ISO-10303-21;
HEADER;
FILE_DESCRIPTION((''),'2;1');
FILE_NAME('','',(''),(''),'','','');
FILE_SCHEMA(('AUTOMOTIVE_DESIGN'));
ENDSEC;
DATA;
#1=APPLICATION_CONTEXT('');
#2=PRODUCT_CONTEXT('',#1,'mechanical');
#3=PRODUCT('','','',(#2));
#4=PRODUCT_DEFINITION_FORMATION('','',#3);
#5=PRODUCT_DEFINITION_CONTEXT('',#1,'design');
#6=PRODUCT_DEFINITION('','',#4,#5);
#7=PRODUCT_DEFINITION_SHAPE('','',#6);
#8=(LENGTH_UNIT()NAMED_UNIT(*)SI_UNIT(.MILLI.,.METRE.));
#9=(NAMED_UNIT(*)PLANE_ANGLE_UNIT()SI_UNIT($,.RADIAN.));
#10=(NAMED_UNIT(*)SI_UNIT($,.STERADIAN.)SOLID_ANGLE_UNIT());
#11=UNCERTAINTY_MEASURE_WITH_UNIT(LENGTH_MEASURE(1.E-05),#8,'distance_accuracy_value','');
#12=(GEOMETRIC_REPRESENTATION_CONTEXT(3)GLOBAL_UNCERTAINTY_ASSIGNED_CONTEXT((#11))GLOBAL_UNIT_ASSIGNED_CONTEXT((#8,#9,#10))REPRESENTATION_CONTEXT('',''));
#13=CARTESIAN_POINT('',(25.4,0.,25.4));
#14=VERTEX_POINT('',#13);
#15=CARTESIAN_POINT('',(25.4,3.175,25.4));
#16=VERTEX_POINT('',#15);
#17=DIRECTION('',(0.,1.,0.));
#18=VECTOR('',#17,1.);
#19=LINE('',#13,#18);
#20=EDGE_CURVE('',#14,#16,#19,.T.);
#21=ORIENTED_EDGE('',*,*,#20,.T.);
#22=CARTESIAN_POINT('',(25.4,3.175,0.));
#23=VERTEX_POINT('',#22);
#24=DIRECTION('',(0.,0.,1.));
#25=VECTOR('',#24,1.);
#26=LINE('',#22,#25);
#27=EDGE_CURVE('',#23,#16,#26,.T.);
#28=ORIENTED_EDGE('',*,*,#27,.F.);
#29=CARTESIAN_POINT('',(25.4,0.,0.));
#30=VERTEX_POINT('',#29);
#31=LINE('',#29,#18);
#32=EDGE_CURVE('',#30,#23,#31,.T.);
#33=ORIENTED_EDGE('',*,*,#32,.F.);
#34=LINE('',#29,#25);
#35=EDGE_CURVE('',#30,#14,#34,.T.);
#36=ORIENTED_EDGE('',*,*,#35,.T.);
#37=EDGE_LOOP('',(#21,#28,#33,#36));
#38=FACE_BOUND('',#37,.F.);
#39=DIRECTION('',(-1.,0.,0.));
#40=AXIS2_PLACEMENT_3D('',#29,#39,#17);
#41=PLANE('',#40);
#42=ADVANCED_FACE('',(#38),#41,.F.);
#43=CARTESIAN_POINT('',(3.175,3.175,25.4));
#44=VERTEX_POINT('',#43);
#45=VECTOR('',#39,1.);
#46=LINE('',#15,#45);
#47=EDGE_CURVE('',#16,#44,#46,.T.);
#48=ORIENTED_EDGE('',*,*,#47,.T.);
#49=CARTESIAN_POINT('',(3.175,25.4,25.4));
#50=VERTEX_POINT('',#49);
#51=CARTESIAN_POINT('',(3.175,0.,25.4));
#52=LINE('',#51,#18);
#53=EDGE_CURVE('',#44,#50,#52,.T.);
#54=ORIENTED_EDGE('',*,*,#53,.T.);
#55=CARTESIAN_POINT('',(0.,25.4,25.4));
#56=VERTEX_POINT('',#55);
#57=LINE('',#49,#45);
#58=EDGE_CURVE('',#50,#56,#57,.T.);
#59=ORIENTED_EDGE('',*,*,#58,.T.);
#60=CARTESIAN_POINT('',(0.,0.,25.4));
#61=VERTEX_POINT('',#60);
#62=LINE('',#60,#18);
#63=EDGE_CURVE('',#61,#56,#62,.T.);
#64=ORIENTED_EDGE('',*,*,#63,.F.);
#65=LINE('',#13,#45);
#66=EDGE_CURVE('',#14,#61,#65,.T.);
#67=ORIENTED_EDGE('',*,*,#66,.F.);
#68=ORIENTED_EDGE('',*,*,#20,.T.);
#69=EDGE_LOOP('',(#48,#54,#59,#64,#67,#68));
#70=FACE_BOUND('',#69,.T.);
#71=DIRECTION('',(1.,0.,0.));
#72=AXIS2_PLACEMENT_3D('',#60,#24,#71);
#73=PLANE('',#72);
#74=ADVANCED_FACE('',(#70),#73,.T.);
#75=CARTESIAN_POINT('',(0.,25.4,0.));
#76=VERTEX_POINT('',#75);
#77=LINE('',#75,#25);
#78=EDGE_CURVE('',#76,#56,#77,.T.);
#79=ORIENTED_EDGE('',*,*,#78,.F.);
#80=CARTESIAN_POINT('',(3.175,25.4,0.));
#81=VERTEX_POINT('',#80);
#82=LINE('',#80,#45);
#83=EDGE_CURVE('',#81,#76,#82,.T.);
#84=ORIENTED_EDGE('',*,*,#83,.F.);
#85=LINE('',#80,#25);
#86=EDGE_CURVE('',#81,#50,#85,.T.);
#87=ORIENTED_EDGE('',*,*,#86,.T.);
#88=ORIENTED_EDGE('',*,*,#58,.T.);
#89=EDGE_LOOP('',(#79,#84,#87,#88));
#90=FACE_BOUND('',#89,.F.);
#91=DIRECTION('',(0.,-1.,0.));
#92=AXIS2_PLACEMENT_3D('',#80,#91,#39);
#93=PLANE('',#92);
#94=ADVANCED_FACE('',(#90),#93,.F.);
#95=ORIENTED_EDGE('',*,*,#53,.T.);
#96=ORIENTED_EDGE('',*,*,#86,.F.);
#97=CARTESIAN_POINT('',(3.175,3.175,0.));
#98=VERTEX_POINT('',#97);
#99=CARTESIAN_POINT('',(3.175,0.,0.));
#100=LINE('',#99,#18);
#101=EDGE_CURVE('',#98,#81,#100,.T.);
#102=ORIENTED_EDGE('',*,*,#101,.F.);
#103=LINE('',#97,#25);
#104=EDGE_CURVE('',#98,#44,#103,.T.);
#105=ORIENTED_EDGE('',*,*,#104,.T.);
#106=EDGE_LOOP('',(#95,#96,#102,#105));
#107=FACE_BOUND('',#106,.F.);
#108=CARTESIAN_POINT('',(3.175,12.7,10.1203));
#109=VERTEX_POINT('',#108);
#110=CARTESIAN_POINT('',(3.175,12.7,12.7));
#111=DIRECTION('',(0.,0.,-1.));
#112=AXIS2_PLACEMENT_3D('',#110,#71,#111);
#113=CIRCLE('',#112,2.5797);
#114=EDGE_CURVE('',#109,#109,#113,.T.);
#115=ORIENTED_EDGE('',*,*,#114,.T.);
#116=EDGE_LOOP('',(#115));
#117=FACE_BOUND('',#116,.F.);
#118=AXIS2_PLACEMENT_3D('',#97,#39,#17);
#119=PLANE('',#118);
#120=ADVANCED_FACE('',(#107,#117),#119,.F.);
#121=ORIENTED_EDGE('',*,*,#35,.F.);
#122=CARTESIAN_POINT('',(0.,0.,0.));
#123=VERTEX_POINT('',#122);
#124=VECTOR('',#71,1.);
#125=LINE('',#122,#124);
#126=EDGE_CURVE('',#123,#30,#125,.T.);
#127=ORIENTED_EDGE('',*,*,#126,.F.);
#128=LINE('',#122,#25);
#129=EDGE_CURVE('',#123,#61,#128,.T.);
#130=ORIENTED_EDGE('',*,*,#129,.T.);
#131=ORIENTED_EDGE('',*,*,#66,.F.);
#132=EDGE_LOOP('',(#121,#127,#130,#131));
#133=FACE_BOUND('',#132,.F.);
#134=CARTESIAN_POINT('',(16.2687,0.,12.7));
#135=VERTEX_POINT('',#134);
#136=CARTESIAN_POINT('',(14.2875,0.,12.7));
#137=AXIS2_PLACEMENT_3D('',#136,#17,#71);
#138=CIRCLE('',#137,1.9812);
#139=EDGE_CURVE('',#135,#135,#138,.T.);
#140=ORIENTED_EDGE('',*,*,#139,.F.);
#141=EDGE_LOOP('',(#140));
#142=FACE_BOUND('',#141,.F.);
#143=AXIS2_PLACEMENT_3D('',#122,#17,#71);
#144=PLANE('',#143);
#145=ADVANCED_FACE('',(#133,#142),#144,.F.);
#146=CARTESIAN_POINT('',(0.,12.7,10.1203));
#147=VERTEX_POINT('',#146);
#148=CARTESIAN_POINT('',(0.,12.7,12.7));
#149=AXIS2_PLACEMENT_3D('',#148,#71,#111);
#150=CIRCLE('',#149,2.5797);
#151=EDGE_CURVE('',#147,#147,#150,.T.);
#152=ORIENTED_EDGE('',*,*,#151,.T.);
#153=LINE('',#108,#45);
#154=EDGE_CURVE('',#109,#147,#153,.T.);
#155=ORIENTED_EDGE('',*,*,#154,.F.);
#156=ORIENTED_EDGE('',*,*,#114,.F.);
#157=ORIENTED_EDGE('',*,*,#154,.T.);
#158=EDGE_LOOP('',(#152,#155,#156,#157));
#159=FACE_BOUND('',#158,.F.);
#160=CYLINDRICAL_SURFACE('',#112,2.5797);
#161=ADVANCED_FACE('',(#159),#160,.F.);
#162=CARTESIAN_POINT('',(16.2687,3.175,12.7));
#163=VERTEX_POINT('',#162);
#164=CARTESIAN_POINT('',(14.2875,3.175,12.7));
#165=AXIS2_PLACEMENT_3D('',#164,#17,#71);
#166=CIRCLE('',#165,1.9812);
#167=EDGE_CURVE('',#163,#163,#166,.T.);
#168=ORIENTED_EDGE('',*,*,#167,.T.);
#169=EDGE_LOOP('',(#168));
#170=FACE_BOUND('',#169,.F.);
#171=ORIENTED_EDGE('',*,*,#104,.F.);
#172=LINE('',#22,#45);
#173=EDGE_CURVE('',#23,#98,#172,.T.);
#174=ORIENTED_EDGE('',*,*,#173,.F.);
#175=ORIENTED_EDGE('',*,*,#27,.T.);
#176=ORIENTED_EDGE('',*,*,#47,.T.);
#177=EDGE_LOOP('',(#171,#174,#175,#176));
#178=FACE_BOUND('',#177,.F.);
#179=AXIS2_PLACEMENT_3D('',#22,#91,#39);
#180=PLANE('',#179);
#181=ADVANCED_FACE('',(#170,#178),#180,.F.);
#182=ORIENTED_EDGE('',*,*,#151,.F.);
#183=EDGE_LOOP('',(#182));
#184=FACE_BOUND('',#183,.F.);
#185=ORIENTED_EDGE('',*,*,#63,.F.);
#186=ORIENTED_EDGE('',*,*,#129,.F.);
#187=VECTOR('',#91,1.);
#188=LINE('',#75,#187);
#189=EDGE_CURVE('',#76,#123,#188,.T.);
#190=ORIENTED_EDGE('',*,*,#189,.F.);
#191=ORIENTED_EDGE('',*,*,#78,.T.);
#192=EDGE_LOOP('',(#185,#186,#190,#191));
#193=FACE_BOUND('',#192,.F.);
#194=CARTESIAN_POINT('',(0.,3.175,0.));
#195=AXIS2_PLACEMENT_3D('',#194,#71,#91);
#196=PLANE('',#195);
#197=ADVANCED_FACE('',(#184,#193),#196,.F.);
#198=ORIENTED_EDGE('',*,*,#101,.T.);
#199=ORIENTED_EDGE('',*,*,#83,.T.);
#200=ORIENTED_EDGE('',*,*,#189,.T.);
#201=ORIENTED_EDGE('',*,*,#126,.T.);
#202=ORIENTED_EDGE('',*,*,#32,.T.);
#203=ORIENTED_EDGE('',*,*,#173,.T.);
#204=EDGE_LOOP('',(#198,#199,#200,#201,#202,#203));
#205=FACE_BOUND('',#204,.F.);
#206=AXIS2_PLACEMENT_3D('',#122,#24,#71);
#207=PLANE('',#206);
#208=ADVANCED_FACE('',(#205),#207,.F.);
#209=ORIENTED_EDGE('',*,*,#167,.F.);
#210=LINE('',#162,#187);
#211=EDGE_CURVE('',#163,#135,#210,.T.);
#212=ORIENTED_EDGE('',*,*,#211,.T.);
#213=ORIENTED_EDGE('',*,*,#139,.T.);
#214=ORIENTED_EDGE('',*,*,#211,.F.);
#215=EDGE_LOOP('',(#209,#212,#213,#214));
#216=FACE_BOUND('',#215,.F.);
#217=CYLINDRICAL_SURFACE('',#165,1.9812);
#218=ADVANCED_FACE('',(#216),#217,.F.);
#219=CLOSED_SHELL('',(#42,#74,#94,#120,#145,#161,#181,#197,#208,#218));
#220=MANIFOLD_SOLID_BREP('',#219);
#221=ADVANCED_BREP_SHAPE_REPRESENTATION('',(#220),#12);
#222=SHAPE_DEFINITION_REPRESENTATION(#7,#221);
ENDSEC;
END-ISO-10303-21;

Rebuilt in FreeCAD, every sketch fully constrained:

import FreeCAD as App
import Part
import Sketcher

V = App.Vector
Q = App.Units.Quantity


def add_polygon(sketch, points):
    """Adds a closed chain of lines whose ends are joined by coincident constraints."""
    first, n = sketch.GeometryCount, len(points)
    for a, b in zip(points, points[1:] + points[:1]):
        sketch.addGeometry(Part.LineSegment(App.Vector(*a, 0), App.Vector(*b, 0)), False)
    for i in range(n):
        sketch.addConstraint(Sketcher.Constraint("Coincident", first + i, 2, first + (i + 1) % n, 1))

doc = App.newDocument("Part")
body = doc.addObject("PartDesign::Body", "Body")

# Sketch on XY plane
sketch1 = body.newObject("Sketcher::SketchObject", "Sketch")
sketch1.AttachmentSupport = (doc.getObject("XY_Plane"), [""])
sketch1.MapMode = "FlatFace"
add_polygon(sketch1, [(0, 0), (25.4, 0), (25.4, 3.2), (3.2, 3.2), (3.2, 25.4), (0, 25.4)])  # lines 0-5
sketch1.addConstraint([
    Sketcher.Constraint("Horizontal", 0),
    Sketcher.Constraint("Vertical", 1),
    Sketcher.Constraint("Horizontal", 2),
    Sketcher.Constraint("Vertical", 3),
    Sketcher.Constraint("Horizontal", 4),
    Sketcher.Constraint("Vertical", 5),
    Sketcher.Constraint("Coincident", 5, 2, -1, 1),
    Sketcher.Constraint("Equal", 4, 1),
    Sketcher.Constraint("Equal", 2, 3),
    Sketcher.Constraint("DistanceX", 0, 1, 0, 2, Q("1 in")),
    Sketcher.Constraint("DistanceX", 4, 2, 4, 1, Q("0.125 in")),
])
pad1 = body.newObject("PartDesign::Pad", "Pad")
pad1.Profile = sketch1
pad1.Length = Q("1 in")

# Sketch on XZ plane
sketch2 = body.newObject("Sketcher::SketchObject", "Sketch001")
sketch2.AttachmentSupport = (doc.getObject("XZ_Plane"), [""])
sketch2.MapMode = "FlatFace"
sketch2.AttachmentOffset = App.Placement(V(0, 0, -0.125 * 25.4), App.Rotation())
sketch2.addGeometry(Part.Circle(V(14.3, 12.7, 0), V(0, 0, 1), 2), False)
sketch2.addConstraint([
    Sketcher.Constraint("Diameter", 0, Q("0.156 in")),
    Sketcher.Constraint("DistanceY", -1, 1, 0, 3, Q("0.5 in")),
    Sketcher.Constraint("DistanceX", -1, 1, 0, 3, Q("0.5625 in")),
])
pocket1 = body.newObject("PartDesign::Pocket", "Pocket")
pocket1.Profile = sketch2
pocket1.Length = Q("1 in")
pocket1.Reversed = True

# Sketch on YZ plane
sketch3 = body.newObject("Sketcher::SketchObject", "Sketch002")
sketch3.AttachmentSupport = (doc.getObject("YZ_Plane"), [""])
sketch3.MapMode = "FlatFace"
sketch3.AttachmentOffset = App.Placement(V(0, 0, 0.125 * 25.4), App.Rotation())
sketch3.addGeometry(Part.Circle(V(12.7, 12.7, 0), V(0, 0, 1), 2.6), False)
sketch3.addConstraint([
    Sketcher.Constraint("Diameter", 0, Q("0.203126 in")),
    Sketcher.Constraint("DistanceX", -1, 1, 0, 3, Q("0.5 in")),
    Sketcher.Constraint("DistanceY", -1, 1, 0, 3, Q("0.5 in")),
])
pocket2 = body.newObject("PartDesign::Pocket", "Pocket001")
pocket2.Profile = sketch3
pocket2.Length = Q("1 in")

doc.recompute()
